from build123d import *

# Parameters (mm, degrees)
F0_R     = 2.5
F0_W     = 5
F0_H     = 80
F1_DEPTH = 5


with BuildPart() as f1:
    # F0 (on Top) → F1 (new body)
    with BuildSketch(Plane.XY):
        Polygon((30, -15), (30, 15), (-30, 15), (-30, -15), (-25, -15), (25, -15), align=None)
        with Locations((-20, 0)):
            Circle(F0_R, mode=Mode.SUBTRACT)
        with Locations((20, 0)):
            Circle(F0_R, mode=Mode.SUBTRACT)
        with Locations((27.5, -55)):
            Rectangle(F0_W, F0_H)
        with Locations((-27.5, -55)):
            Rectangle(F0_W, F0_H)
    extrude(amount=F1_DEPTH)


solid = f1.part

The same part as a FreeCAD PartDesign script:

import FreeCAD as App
import Part
import Sketcher
from FreeCAD import Vector


def add_polygon(sketch, points):
    """Adds a closed chain of lines whose ends are joined by coincident constraints."""
    first, n = sketch.GeometryCount, len(points)
    for a, b in zip(points, points[1:] + points[:1]):
        sketch.addGeometry(Part.LineSegment(App.Vector(*a, 0), App.Vector(*b, 0)), False)
    for i in range(n):
        sketch.addConstraint(Sketcher.Constraint("Coincident", first + i, 2, first + (i + 1) % n, 1))

doc = App.newDocument("Part")
params = doc.addObject("Spreadsheet::Sheet", "Params")
for row, (alias, value) in enumerate([
    ("sketch1_diameter", "5 mm"),
    ("sketch1_width", "60 mm"),
    ("sketch1_width2", "5 mm"),
    ("sketch1_height", "110 mm"),
    ("sketch1_height2", "80 mm"),
    ("pad1_length", "5 mm"),
], start=1):
    params.set(f"A{row}", alias)
    params.set(f"B{row}", "=" + value)
    params.setAlias(f"B{row}", alias)

body = doc.addObject("PartDesign::Body", "Body")

sketch1 = body.newObject("Sketcher::SketchObject", "Sketch")
sketch1.AttachmentSupport = (doc.getObject("XY_Plane"), [""])
sketch1.MapMode = "FlatFace"
add_polygon(sketch1, [(30, 15), (-30, 15), (-30, -95), (-25, -95), (-25, -15), (25, -15), (25, -95), (30, -95)])
sketch1.addGeometry(Part.Circle(Vector(-20, 0, 0), Vector(0, 0, 1), 2.5), False)
sketch1.addGeometry(Part.Circle(Vector(20, 0, 0), Vector(0, 0, 1), 2.5), False)
sketch1.addConstraint(Sketcher.Constraint("Horizontal", 0))
sketch1.addConstraint(Sketcher.Constraint("Vertical", 1))
sketch1.addConstraint(Sketcher.Constraint("Horizontal", 2))
sketch1.addConstraint(Sketcher.Constraint("Vertical", 3))
sketch1.addConstraint(Sketcher.Constraint("Horizontal", 4))
sketch1.addConstraint(Sketcher.Constraint("Vertical", 5))
sketch1.addConstraint(Sketcher.Constraint("Horizontal", 6))
sketch1.addConstraint(Sketcher.Constraint("Vertical", 7))
sketch1.addConstraint(Sketcher.Constraint("Equal", 8, 9))
sketch1.addConstraint(Sketcher.Constraint("Symmetric", 8, 3, 9, 3, -1, 1))
sketch1.addConstraint(Sketcher.Constraint("Symmetric", 2, 2, 5, 2, -2))
sketch1.addConstraint(Sketcher.Constraint("PointOnObject", 8, 3, -1))
sketch1.addConstraint(Sketcher.Constraint("Equal", 2, 6))
sketch1.addConstraint(Sketcher.Constraint("Diameter", 8, 5.0))
sketch1.addConstraint(Sketcher.Constraint("DistanceX", 0, 2, 0, 1, 60.0))
sketch1.addConstraint(Sketcher.Constraint("DistanceX", 2, 1, 2, 2, 5.0))
sketch1.addConstraint(Sketcher.Constraint("DistanceY", 1, 2, 1, 1, 110.0))
sketch1.addConstraint(Sketcher.Constraint("DistanceY", 3, 1, 3, 2, 80.0))
sketch1.addConstraint(Sketcher.Constraint("DistanceX", 8, 3, -1, 1, 20.0))
sketch1.addConstraint(Sketcher.Constraint("DistanceY", -1, 1, 0, 2, 15.0))
sketch1.setExpression("Constraints[21]", "Params.sketch1_diameter")
sketch1.setExpression("Constraints[22]", "Params.sketch1_width")
sketch1.setExpression("Constraints[23]", "Params.sketch1_width2")
sketch1.setExpression("Constraints[24]", "Params.sketch1_height")
sketch1.setExpression("Constraints[25]", "Params.sketch1_height2")
pad1 = body.newObject("PartDesign::Pad", "Pad")
pad1.Profile = sketch1
pad1.setExpression("Length", "Params.pad1_length")

doc.recompute()
